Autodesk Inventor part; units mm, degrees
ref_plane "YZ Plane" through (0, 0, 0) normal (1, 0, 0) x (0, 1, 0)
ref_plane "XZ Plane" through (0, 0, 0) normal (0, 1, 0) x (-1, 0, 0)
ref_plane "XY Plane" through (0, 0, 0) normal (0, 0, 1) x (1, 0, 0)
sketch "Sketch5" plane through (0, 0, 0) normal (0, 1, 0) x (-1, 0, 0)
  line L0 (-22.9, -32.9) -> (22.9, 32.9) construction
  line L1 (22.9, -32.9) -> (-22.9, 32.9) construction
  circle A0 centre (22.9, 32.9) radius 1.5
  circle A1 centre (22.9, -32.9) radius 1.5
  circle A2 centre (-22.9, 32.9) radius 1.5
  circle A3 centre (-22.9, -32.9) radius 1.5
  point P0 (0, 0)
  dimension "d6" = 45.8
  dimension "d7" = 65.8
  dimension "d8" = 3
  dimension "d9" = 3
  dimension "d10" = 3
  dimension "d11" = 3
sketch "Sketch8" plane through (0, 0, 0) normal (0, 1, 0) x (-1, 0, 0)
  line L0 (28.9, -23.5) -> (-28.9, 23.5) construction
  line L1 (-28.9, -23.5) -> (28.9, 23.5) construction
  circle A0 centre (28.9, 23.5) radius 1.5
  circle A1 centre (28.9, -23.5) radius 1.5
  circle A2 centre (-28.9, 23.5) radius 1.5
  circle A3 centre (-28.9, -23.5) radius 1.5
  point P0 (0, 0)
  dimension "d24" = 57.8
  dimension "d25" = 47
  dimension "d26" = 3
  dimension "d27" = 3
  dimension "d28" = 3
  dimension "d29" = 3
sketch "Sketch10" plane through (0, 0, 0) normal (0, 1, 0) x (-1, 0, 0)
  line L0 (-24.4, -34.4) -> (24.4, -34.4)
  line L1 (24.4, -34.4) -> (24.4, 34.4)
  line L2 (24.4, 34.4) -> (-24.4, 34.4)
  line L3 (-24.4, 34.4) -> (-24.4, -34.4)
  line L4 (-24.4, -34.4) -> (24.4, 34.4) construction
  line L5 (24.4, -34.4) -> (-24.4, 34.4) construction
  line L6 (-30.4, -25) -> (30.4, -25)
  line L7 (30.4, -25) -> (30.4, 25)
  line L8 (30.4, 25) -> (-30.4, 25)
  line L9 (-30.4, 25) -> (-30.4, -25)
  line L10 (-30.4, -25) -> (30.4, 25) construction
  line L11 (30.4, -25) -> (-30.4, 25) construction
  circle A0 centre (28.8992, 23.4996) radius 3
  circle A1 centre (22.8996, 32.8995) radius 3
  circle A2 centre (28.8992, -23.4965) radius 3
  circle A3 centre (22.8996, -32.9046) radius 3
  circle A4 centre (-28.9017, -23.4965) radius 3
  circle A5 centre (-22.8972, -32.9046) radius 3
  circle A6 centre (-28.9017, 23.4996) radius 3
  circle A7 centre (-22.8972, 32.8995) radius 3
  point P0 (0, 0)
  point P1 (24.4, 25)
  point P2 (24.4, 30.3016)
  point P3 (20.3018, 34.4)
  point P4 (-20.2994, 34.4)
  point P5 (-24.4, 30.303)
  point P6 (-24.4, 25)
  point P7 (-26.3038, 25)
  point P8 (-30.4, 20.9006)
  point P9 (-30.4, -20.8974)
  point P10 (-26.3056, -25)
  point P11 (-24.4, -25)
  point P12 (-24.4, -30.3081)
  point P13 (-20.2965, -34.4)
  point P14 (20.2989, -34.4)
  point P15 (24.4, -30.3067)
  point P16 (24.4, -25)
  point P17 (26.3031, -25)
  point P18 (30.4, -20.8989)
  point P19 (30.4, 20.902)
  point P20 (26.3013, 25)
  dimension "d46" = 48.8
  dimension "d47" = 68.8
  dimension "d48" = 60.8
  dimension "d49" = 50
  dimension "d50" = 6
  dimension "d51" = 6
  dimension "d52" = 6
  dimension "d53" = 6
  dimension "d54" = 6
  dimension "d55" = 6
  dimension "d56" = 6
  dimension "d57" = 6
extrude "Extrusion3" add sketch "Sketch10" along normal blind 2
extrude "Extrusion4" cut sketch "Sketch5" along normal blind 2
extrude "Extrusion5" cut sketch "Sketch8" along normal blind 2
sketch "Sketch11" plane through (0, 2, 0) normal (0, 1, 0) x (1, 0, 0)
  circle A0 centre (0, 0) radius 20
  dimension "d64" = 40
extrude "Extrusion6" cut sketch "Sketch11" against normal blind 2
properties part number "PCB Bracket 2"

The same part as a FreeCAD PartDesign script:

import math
import FreeCAD as App
import Part
import Sketcher
from FreeCAD import Vector

doc = App.newDocument("Part")
body = doc.addObject("PartDesign::Body", "Body")

sketch1 = body.newObject("Sketcher::SketchObject", "Sketch")
sketch1.AttachmentSupport = (doc.getObject("XZ_Plane"), [""])
sketch1.MapMode = "FlatFace"
sketch1.addGeometry([
    Part.ArcOfCircle(Part.Circle(Vector(22.8972, -32.9046, 0), Vector(0, 0, 1), 3), math.radians(-150.101393), math.radians(59.938232)),
    Part.LineSegment(Vector(20.296473, -34.4, 0), Vector(-20.298873, -34.4, 0)),
    Part.ArcOfCircle(Part.Circle(Vector(-22.8996, -32.9046, 0), Vector(0, 0, 1), 3), math.radians(120.008822), math.radians(330.101393)),
    Part.LineSegment(Vector(-24.4, -30.306755, 0), Vector(-24.4, -25, 0)),
    Part.LineSegment(Vector(-24.4, -25, 0), Vector(-26.303148, -25, 0)),
    Part.ArcOfCircle(Part.Circle(Vector(-28.8992, -23.4965, 0), Vector(0, 0, 1), 3), math.radians(120.017644), math.radians(329.922784)),
    Part.LineSegment(Vector(-30.4, -20.898886, 0), Vector(-30.4, 20.901986, 0)),
    Part.ArcOfCircle(Part.Circle(Vector(-28.8992, 23.4996, 0), Vector(0, 0, 1), 3), math.radians(30.008822), math.radians(239.982356)),
    Part.LineSegment(Vector(-26.301355, 25, 0), Vector(-24.4, 25, 0)),
    Part.LineSegment(Vector(-24.4, 25, 0), Vector(-24.4, 30.301655, 0)),
    Part.ArcOfCircle(Part.Circle(Vector(-22.8996, 32.8995, 0), Vector(0, 0, 1), 3), math.radians(30.011027), math.radians(239.991178)),
    Part.LineSegment(Vector(-20.301813, 34.4, 0), Vector(20.299413, 34.4, 0)),
    Part.ArcOfCircle(Part.Circle(Vector(22.8972, 32.8995, 0), Vector(0, 0, 1), 3), math.radians(-59.938232), math.radians(149.988973)),
    Part.LineSegment(Vector(24.4, 30.303042, 0), Vector(24.4, 25, 0)),
    Part.LineSegment(Vector(24.4, 25, 0), Vector(26.303855, 25, 0)),
    Part.ArcOfCircle(Part.Circle(Vector(28.9017, 23.4996, 0), Vector(0, 0, 1), 3), math.radians(-60.037483), math.radians(149.991178)),
    Part.LineSegment(Vector(30.4, 20.900543, 0), Vector(30.4, -20.897443, 0)),
    Part.ArcOfCircle(Part.Circle(Vector(28.9017, -23.4965, 0), Vector(0, 0, 1), 3), math.radians(-149.922784), math.radians(60.037483)),
    Part.LineSegment(Vector(26.305648, -25, 0), Vector(24.4, -25, 0)),
    Part.LineSegment(Vector(24.4, -25, 0), Vector(24.4, -30.308142, 0)),
], False)
sketch1.addConstraint([
    Sketcher.Constraint("Coincident", 0, 1, 1, 1),
    Sketcher.Constraint("Coincident", 1, 2, 2, 2),
    Sketcher.Constraint("Coincident", 2, 1, 3, 1),
    Sketcher.Constraint("Coincident", 3, 2, 4, 1),
    Sketcher.Constraint("Coincident", 4, 2, 5, 2),
    Sketcher.Constraint("Coincident", 5, 1, 6, 1),
    Sketcher.Constraint("Coincident", 6, 2, 7, 2),
    Sketcher.Constraint("Coincident", 7, 1, 8, 1),
    Sketcher.Constraint("Coincident", 8, 2, 9, 1),
    Sketcher.Constraint("Coincident", 9, 2, 10, 2),
    Sketcher.Constraint("Coincident", 10, 1, 11, 1),
    Sketcher.Constraint("Coincident", 11, 2, 12, 2),
    Sketcher.Constraint("Coincident", 12, 1, 13, 1),
    Sketcher.Constraint("Coincident", 13, 2, 14, 1),
    Sketcher.Constraint("Coincident", 14, 2, 15, 2),
    Sketcher.Constraint("Coincident", 15, 1, 16, 1),
    Sketcher.Constraint("Coincident", 16, 2, 17, 2),
    Sketcher.Constraint("Coincident", 17, 1, 18, 1),
    Sketcher.Constraint("Coincident", 18, 2, 19, 1),
    Sketcher.Constraint("Coincident", 19, 2, 0, 2),
    Sketcher.Constraint("Horizontal", 1),
    Sketcher.Constraint("Vertical", 3),
    Sketcher.Constraint("Horizontal", 4),
    Sketcher.Constraint("Vertical", 6),
    Sketcher.Constraint("Horizontal", 8),
    Sketcher.Constraint("Vertical", 9),
    Sketcher.Constraint("Horizontal", 11),
    Sketcher.Constraint("Vertical", 13),
    Sketcher.Constraint("Horizontal", 14),
    Sketcher.Constraint("Vertical", 16),
    Sketcher.Constraint("Horizontal", 18),
    Sketcher.Constraint("Vertical", 19),
    Sketcher.Constraint("Equal", 0, 2),
    Sketcher.Constraint("Equal", 2, 5),
    Sketcher.Constraint("Equal", 5, 7),
    Sketcher.Constraint("Equal", 7, 10),
    Sketcher.Constraint("Equal", 10, 12),
    Sketcher.Constraint("Equal", 12, 15),
    Sketcher.Constraint("Equal", 15, 17),
    Sketcher.Constraint("Symmetric", 3, 2, 13, 2, -1, 1),
    Sketcher.Constraint("Symmetric", 8, 2, 18, 2, -1, 1),
    Sketcher.Constraint("Symmetric", 8, 2, 13, 2, -2),
    Sketcher.Constraint("Horizontal", 0, 3, 2, 3),
    Sketcher.Constraint("Horizontal", 10, 3, 12, 3),
    Sketcher.Constraint("Horizontal", 7, 3, 15, 3),
    Sketcher.Constraint("Horizontal", 5, 3, 17, 3),
    Sketcher.Constraint("Vertical", 5, 3, 7, 3),
    Sketcher.Constraint("Vertical", 2, 3, 10, 3),
    Sketcher.Constraint("Vertical", 0, 3, 12, 3),
    Sketcher.Constraint("Vertical", 15, 3, 17, 3),
    Sketcher.Constraint("Radius", 0, 3.0),
    Sketcher.Constraint("DistanceX", 5, 1, 3, 2, 6.0),
    Sketcher.Constraint("DistanceX", 13, 2, 15, 1, 6.0),
    Sketcher.Constraint("DistanceY", 3, 2, -1, 1, 25.0),
    Sketcher.Constraint("DistanceY", 0, 1, -1, 1, 34.4),
    Sketcher.Constraint("DistanceX", 2, 1, -1, 1, 24.4),
    Sketcher.Constraint("DistanceY", -1, 1, 10, 1, 34.4),
    Sketcher.Constraint("DistanceX", 5, 3, 2, 3, 5.9996),
    Sketcher.Constraint("DistanceY", 7, 3, 10, 3, 9.4),
    Sketcher.Constraint("DistanceY", 13, 2, 13, 1, 5.303),
    Sketcher.Constraint("DistanceY", 16, 2, 16, 1, 41.798),
    Sketcher.Constraint("DistanceX", 1, 2, 1, 1, 40.5953),
    Sketcher.Constraint("DistanceX", 4, 2, 4, 1, 1.9031),
    Sketcher.Constraint("DistanceX", 8, 1, 8, 2, 1.9014),
    Sketcher.Constraint("DistanceX", 11, 1, 11, 2, 40.6012),
])
pad1 = body.newObject("PartDesign::Pad", "Pad")
pad1.Profile = sketch1
pad1.Length = 2
pad1.Reversed = True

sketch2 = body.newObject("Sketcher::SketchObject", "Sketch001")
sketch2.AttachmentSupport = (doc.getObject("XZ_Plane"), [""])
sketch2.MapMode = "FlatFace"
sketch2.addGeometry([
    Part.Circle(Vector(-22.9, 32.9, 0), Vector(0, 0, 1), 1.5),
    Part.Circle(Vector(-22.9, -32.9, 0), Vector(0, 0, 1), 1.5),
    Part.Circle(Vector(22.9, 32.9, 0), Vector(0, 0, 1), 1.5),
    Part.Circle(Vector(22.9, -32.9, 0), Vector(0, 0, 1), 1.5),
], False)
sketch2.addConstraint([
    Sketcher.Constraint("Equal", 0, 1),
    Sketcher.Constraint("Equal", 1, 2),
    Sketcher.Constraint("Equal", 2, 3),
    Sketcher.Constraint("Symmetric", 1, 3, 2, 3, -1, 1),
    Sketcher.Constraint("Symmetric", 0, 3, 3, 3, -1, 1),
    Sketcher.Constraint("Symmetric", 0, 3, 2, 3, -2),
    Sketcher.Constraint("Diameter", 0, 3.0),
    Sketcher.Constraint("DistanceY", 1, 3, 0, 3, 65.8),
    Sketcher.Constraint("DistanceX", 0, 3, 2, 3, 45.8),
])
pocket1 = body.newObject("PartDesign::Pocket", "Pocket")
pocket1.Profile = sketch2
pocket1.Length = 2

sketch3 = body.newObject("Sketcher::SketchObject", "Sketch002")
sketch3.AttachmentSupport = (doc.getObject("XZ_Plane"), [""])
sketch3.MapMode = "FlatFace"
sketch3.addGeometry([
    Part.Circle(Vector(-28.9, 23.5, 0), Vector(0, 0, 1), 1.5),
    Part.Circle(Vector(-28.9, -23.5, 0), Vector(0, 0, 1), 1.5),
    Part.Circle(Vector(28.9, 23.5, 0), Vector(0, 0, 1), 1.5),
    Part.Circle(Vector(28.9, -23.5, 0), Vector(0, 0, 1), 1.5),
], False)
sketch3.addConstraint([
    Sketcher.Constraint("Equal", 0, 1),
    Sketcher.Constraint("Equal", 1, 2),
    Sketcher.Constraint("Equal", 2, 3),
    Sketcher.Constraint("Symmetric", 1, 3, 2, 3, -1, 1),
    Sketcher.Constraint("Symmetric", 0, 3, 3, 3, -1, 1),
    Sketcher.Constraint("Symmetric", 0, 3, 2, 3, -2),
    Sketcher.Constraint("Diameter", 0, 3.0),
    Sketcher.Constraint("DistanceY", 1, 3, 0, 3, 47.0),
    Sketcher.Constraint("DistanceX", 0, 3, 2, 3, 57.8),
])
pocket2 = body.newObject("PartDesign::Pocket", "Pocket001")
pocket2.Profile = sketch3
pocket2.Length = 2

sketch4 = body.newObject("Sketcher::SketchObject", "Sketch003")
sketch4.AttachmentSupport = (doc.getObject("XZ_Plane"), [""])
sketch4.MapMode = "FlatFace"
sketch4.AttachmentOffset = App.Placement(Vector(0, 0, -2), App.Rotation())
sketch4.addGeometry(Part.Circle(Vector(0, 0, 0), Vector(0, 0, 1), 20), False)
sketch4.addConstraint([
    Sketcher.Constraint("Coincident", 0, 3, -1, 1),
    Sketcher.Constraint("Diameter", 0, 40.0),
])
pocket3 = body.newObject("PartDesign::Pocket", "Pocket002")
pocket3.Profile = sketch4
pocket3.Length = 2
pocket3.Reversed = True

doc.recompute()
